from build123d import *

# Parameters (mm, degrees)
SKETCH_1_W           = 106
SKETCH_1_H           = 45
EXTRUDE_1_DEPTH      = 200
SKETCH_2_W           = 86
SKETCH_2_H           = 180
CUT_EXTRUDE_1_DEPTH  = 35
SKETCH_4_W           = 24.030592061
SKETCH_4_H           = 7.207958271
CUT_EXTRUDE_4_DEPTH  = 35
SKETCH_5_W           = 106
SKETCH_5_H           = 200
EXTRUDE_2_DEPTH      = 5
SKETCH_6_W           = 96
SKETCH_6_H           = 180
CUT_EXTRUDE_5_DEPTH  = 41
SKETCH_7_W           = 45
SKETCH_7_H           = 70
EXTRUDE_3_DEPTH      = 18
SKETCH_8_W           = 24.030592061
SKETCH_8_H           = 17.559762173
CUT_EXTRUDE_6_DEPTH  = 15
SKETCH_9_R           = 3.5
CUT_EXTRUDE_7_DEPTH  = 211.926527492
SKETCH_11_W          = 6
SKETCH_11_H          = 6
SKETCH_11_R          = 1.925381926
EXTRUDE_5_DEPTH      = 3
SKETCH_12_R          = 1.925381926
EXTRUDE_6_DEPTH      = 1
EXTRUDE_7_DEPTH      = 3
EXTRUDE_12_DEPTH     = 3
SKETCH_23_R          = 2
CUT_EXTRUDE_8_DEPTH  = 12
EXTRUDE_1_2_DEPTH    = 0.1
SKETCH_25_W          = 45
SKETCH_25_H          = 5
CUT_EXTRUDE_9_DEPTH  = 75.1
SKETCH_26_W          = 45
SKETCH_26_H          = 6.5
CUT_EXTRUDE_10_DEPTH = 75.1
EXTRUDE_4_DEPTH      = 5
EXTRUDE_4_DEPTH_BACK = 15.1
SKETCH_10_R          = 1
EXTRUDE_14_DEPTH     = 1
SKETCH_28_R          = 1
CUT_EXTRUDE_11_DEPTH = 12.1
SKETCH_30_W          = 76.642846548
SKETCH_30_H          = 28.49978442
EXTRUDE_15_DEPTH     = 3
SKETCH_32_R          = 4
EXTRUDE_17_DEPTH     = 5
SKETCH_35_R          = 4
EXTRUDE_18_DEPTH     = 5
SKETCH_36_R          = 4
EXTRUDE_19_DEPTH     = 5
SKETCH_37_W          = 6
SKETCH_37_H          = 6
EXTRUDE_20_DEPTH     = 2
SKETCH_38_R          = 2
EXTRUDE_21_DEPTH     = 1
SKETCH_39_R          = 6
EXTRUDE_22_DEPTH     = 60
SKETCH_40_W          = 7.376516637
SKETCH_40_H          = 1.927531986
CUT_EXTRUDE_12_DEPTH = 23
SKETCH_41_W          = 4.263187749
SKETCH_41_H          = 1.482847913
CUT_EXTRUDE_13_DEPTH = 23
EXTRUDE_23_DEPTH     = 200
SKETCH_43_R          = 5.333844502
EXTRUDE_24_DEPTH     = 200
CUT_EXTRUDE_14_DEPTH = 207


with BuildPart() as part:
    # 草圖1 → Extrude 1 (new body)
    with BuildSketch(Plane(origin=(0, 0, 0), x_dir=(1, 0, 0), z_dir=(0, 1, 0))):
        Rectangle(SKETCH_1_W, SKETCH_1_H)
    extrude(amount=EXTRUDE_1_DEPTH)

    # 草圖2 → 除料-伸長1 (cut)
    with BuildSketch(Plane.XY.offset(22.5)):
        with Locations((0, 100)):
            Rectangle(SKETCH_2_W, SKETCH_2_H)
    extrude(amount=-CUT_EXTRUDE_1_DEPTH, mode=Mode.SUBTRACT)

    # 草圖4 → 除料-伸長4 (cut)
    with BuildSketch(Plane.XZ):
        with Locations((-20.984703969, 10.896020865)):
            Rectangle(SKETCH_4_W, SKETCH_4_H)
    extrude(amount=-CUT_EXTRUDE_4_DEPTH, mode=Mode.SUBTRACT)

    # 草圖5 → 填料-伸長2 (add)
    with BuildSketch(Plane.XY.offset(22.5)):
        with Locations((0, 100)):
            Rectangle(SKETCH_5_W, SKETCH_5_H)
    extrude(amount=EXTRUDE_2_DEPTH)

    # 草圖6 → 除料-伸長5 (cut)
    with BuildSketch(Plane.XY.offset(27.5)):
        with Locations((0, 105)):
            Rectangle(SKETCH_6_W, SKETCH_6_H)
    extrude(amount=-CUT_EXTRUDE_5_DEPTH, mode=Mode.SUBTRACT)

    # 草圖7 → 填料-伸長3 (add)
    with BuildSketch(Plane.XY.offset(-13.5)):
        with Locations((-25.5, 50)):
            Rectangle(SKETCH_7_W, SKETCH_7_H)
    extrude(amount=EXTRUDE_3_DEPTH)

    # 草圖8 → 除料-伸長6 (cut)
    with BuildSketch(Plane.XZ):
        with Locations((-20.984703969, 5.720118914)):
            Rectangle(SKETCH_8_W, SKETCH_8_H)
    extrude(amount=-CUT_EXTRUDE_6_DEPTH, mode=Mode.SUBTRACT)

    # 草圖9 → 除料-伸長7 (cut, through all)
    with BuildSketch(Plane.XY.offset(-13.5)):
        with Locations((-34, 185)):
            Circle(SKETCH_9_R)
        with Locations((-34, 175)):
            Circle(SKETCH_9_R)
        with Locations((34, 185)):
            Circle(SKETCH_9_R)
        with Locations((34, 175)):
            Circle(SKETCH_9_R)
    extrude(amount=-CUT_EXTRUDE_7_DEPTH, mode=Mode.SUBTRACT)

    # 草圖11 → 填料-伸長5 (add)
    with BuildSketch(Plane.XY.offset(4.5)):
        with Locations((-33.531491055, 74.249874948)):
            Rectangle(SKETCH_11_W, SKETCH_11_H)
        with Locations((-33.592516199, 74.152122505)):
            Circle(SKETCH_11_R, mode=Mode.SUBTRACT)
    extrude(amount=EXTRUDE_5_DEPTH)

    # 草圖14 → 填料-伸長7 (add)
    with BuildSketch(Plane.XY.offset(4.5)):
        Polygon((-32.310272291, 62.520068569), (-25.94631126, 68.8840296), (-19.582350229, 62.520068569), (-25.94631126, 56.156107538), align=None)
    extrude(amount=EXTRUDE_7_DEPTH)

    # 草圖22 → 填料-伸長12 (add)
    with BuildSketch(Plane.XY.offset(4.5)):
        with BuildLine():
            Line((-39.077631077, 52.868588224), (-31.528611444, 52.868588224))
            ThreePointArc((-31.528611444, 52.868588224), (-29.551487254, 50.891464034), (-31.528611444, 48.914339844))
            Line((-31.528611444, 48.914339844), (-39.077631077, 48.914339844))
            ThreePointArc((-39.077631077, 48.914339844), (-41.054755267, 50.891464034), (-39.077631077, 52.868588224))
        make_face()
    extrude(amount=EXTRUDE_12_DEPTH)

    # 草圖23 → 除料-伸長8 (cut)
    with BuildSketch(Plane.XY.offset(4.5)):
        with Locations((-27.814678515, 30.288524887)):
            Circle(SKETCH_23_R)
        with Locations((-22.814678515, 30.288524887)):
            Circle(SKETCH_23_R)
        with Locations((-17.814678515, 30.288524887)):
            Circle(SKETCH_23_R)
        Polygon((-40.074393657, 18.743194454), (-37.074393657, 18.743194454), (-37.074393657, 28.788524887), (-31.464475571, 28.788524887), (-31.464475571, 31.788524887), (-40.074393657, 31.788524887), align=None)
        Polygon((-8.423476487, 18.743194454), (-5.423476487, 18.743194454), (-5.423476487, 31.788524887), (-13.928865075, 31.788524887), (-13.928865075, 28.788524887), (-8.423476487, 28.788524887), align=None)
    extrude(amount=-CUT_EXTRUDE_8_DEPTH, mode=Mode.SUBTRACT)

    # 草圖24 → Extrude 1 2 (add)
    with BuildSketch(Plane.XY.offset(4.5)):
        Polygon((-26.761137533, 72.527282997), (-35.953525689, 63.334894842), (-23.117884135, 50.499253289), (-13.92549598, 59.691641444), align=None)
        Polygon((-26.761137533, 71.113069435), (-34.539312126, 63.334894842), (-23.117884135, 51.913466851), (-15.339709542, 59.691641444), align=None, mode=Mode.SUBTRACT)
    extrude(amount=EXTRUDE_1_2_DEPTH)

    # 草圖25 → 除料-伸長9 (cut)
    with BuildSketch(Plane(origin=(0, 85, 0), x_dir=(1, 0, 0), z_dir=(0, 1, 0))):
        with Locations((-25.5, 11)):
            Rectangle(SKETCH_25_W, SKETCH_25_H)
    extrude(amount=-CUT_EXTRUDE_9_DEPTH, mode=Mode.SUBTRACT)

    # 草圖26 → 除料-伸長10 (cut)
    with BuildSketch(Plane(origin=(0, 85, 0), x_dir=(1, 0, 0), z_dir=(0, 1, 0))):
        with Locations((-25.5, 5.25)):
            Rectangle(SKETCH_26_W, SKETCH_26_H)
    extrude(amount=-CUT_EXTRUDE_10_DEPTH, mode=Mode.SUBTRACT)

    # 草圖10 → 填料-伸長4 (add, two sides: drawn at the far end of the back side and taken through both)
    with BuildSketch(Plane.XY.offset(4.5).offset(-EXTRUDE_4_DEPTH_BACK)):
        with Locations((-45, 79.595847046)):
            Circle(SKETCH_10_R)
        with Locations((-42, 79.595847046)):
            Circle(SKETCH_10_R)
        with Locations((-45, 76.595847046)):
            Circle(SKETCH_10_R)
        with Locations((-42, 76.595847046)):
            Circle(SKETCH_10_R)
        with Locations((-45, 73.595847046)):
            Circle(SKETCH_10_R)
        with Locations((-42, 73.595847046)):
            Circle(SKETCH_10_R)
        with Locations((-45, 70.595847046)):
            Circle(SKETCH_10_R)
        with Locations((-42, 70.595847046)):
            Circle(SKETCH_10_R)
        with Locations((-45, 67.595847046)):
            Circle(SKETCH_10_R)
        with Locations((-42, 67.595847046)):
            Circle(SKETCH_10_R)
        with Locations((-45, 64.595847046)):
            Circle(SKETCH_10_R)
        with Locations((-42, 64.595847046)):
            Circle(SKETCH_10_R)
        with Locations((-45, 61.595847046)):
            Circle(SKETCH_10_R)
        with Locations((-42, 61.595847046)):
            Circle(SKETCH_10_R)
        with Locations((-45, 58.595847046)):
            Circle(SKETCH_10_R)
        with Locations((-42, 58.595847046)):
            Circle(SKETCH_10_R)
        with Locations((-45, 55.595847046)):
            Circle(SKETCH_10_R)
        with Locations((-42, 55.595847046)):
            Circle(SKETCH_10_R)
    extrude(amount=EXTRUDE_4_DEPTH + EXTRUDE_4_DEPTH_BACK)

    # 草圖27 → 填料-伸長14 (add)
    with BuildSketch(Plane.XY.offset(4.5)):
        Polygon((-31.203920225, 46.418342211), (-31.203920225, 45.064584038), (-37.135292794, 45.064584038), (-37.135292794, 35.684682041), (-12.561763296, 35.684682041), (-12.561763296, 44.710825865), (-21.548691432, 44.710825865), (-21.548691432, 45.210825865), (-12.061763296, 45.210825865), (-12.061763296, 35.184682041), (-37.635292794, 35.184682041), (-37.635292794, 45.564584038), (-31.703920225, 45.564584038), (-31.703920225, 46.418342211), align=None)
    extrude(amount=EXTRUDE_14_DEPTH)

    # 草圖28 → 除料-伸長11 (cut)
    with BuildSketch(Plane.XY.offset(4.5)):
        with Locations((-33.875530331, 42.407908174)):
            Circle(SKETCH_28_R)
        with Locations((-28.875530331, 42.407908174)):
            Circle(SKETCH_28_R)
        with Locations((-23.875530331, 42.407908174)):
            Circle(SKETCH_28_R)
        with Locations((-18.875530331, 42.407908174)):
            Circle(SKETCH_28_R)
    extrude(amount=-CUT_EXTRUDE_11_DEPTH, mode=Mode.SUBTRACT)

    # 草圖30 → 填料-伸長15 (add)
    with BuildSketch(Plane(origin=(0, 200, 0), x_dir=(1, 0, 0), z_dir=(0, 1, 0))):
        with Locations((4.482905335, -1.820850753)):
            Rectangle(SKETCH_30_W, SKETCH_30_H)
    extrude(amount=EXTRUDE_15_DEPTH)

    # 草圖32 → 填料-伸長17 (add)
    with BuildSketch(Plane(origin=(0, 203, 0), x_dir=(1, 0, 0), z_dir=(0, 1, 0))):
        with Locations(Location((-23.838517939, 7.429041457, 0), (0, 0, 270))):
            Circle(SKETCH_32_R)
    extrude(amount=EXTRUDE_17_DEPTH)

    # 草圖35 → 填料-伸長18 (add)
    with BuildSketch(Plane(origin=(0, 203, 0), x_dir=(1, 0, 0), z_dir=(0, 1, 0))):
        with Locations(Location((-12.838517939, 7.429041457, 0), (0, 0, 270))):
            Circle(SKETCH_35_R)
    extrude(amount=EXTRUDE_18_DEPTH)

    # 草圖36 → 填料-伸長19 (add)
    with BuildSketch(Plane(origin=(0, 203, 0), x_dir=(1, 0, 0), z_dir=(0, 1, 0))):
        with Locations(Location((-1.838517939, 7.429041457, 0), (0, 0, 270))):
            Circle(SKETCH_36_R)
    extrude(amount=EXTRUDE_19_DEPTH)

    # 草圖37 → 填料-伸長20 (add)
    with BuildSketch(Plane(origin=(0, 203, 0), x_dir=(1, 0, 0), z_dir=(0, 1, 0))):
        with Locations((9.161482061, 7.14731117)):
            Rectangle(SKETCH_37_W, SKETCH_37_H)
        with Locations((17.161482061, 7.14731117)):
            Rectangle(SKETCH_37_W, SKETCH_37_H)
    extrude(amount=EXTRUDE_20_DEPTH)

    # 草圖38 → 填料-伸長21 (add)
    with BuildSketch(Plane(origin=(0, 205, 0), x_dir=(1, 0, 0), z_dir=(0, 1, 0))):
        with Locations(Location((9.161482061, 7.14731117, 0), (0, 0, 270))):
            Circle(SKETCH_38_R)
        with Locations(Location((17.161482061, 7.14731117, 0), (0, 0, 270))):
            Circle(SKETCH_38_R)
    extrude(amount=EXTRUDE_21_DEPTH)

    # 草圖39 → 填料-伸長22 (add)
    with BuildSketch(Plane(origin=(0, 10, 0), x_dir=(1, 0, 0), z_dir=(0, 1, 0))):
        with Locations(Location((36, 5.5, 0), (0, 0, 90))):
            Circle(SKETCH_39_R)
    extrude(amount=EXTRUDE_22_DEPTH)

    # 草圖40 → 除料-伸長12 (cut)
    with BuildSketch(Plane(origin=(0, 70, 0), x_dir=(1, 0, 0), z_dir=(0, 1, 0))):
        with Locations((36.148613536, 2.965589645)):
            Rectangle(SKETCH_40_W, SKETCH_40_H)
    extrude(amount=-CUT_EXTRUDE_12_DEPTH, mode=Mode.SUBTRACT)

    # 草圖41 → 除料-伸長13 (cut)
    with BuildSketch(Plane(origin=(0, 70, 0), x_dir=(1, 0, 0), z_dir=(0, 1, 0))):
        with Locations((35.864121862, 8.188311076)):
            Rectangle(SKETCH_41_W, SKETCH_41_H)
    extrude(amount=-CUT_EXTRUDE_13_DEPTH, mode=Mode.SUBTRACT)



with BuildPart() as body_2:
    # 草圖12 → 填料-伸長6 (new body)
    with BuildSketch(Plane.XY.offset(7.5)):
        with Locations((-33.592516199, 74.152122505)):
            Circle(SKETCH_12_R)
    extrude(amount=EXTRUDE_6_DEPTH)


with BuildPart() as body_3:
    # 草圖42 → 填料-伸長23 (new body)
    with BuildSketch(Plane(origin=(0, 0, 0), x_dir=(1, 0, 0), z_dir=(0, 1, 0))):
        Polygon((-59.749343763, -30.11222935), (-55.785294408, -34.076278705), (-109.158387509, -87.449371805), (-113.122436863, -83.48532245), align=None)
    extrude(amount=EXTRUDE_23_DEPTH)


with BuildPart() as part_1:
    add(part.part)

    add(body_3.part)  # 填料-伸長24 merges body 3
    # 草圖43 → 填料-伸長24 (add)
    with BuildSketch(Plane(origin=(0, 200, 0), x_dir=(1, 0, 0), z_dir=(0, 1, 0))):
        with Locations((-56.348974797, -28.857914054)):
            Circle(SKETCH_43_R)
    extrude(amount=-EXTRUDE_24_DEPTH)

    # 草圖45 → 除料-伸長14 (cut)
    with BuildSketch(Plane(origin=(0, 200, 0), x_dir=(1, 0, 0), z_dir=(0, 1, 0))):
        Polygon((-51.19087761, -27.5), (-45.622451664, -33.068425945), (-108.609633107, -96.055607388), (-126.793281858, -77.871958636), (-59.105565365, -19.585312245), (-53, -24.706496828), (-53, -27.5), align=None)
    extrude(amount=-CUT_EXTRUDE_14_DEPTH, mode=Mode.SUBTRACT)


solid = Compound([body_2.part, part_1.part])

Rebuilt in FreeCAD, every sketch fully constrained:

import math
import FreeCAD as App
import Part
import Sketcher
from FreeCAD import Vector
Q = App.Units.Quantity


def add_polygon(sketch, points):
    """Adds a closed chain of lines whose ends are joined by coincident constraints."""
    first, n = sketch.GeometryCount, len(points)
    for a, b in zip(points, points[1:] + points[:1]):
        sketch.addGeometry(Part.LineSegment(App.Vector(*a, 0), App.Vector(*b, 0)), False)
    for i in range(n):
        sketch.addConstraint(Sketcher.Constraint("Coincident", first + i, 2, first + (i + 1) % n, 1))

doc = App.newDocument("Part")
body = doc.addObject("PartDesign::Body", "Body")

# Sketch on XZ plane
sketch1 = body.newObject("Sketcher::SketchObject", "Sketch")
sketch1.AttachmentSupport = (doc.getObject("XZ_Plane"), [""])
sketch1.MapMode = "FlatFace"
add_polygon(sketch1, [(-53, -22), (-53, 22), (53, 22), (53, -22)])  # lines 0-3
sketch1.addConstraint([
    Sketcher.Constraint("Vertical", 0),
    Sketcher.Constraint("Horizontal", 1),
    Sketcher.Constraint("Vertical", 2),
    Sketcher.Constraint("Horizontal", 3),
    Sketcher.Constraint("Symmetric", 0, 2, 2, 2, -1, 1),
    Sketcher.Constraint("DistanceX", 1, 1, 1, 2, 106.0),
    Sketcher.Constraint("DistanceY", 0, 1, 0, 2, 45.0),
])
pad1 = body.newObject("PartDesign::Pad", "Pad")
pad1.Profile = sketch1
pad1.Length = 200
pad1.Reversed = True

# Sketch on XY plane
sketch2 = body.newObject("Sketcher::SketchObject", "Sketch001")
sketch2.AttachmentSupport = (doc.getObject("XY_Plane"), [""])
sketch2.MapMode = "FlatFace"
sketch2.AttachmentOffset = App.Placement(Vector(0, 0, 22.5), App.Rotation())
add_polygon(sketch2, [(-43, 190), (-43, 10), (43, 10), (43, 190)])  # lines 0-3
sketch2.addConstraint([
    Sketcher.Constraint("Vertical", 0),
    Sketcher.Constraint("Horizontal", 1),
    Sketcher.Constraint("Vertical", 2),
    Sketcher.Constraint("Horizontal", 3),
    Sketcher.Constraint("DistanceX", 1, 1, 1, 2, 86.0),
    Sketcher.Constraint("DistanceY", 0, 2, 0, 1, 180.0),
    Sketcher.Constraint("DistanceX", 0, 2, -1, 1, 43.0),
    Sketcher.Constraint("DistanceY", -1, 1, 0, 2, 10.0),
])
pocket1 = body.newObject("PartDesign::Pocket", "Pocket")
pocket1.Profile = sketch2
pocket1.Length = 35

# Sketch on XZ plane
sketch3 = body.newObject("Sketcher::SketchObject", "Sketch002")
sketch3.AttachmentSupport = (doc.getObject("XZ_Plane"), [""])
sketch3.MapMode = "FlatFace"
add_polygon(sketch3, [(-33, 15), (-33, 7), (-9, 7), (-9, 15)])  # lines 0-3
sketch3.addConstraint([
    Sketcher.Constraint("Vertical", 0),
    Sketcher.Constraint("Horizontal", 1),
    Sketcher.Constraint("Vertical", 2),
    Sketcher.Constraint("Horizontal", 3),
    Sketcher.Constraint("DistanceX", 0, 2, -1, 1, 33.0),
    Sketcher.Constraint("DistanceY", -1, 1, 2, 2, 14.5),
    Sketcher.Constraint("DistanceY", 0, 2, 0, 1, 7.207958),
    Sketcher.Constraint("DistanceX", 1, 1, 1, 2, 24.030592),
])
pocket2 = body.newObject("PartDesign::Pocket", "Pocket001")
pocket2.Profile = sketch3
pocket2.Length = 35

# Sketch on XY plane
sketch4 = body.newObject("Sketcher::SketchObject", "Sketch003")
sketch4.AttachmentSupport = (doc.getObject("XY_Plane"), [""])
sketch4.MapMode = "FlatFace"
sketch4.AttachmentOffset = App.Placement(Vector(0, 0, 22.5), App.Rotation())
add_polygon(sketch4, [(-53, 200), (-53, 0), (53, 0), (53, 200)])  # lines 0-3
sketch4.addConstraint([
    Sketcher.Constraint("Vertical", 0),
    Sketcher.Constraint("Horizontal", 1),
    Sketcher.Constraint("Vertical", 2),
    Sketcher.Constraint("Horizontal", 3),
    Sketcher.Constraint("Symmetric", 0, 2, 1, 2, -1, 1),
    Sketcher.Constraint("DistanceX", 1, 1, 1, 2, 106.0),
    Sketcher.Constraint("DistanceY", 0, 2, 0, 1, 200.0),
])
pad2 = body.newObject("PartDesign::Pad", "Pad001")
pad2.Profile = sketch4
pad2.Length = 5

# Sketch on XY plane
sketch5 = body.newObject("Sketcher::SketchObject", "Sketch004")
sketch5.AttachmentSupport = (doc.getObject("XY_Plane"), [""])
sketch5.MapMode = "FlatFace"
sketch5.AttachmentOffset = App.Placement(Vector(0, 0, 27.5), App.Rotation())
add_polygon(sketch5, [(-48, 195), (-48, 15), (48, 15), (48, 195)])  # lines 0-3
sketch5.addConstraint([
    Sketcher.Constraint("Vertical", 0),
    Sketcher.Constraint("Horizontal", 1),
    Sketcher.Constraint("Vertical", 2),
    Sketcher.Constraint("Horizontal", 3),
    Sketcher.Constraint("DistanceX", 1, 1, 1, 2, 96.0),
    Sketcher.Constraint("DistanceY", 0, 2, 0, 1, 180.0),
    Sketcher.Constraint("DistanceX", 0, 2, -1, 1, 48.0),
    Sketcher.Constraint("DistanceY", -1, 1, 0, 2, 15.0),
])
pocket3 = body.newObject("PartDesign::Pocket", "Pocket002")
pocket3.Profile = sketch5
pocket3.Length = 41

# Sketch on XY plane
sketch6 = body.newObject("Sketcher::SketchObject", "Sketch005")
sketch6.AttachmentSupport = (doc.getObject("XY_Plane"), [""])
sketch6.MapMode = "FlatFace"
sketch6.AttachmentOffset = App.Placement(Vector(0, 0, -13.5), App.Rotation())
add_polygon(sketch6, [(-48, 85), (-48, 15), (-3, 15), (-3, 85)])  # lines 0-3
sketch6.addConstraint([
    Sketcher.Constraint("Vertical", 0),
    Sketcher.Constraint("Horizontal", 1),
    Sketcher.Constraint("Vertical", 2),
    Sketcher.Constraint("Horizontal", 3),
    Sketcher.Constraint("DistanceX", 1, 1, 1, 2, 45.0),
    Sketcher.Constraint("DistanceY", 0, 2, 0, 1, 70.0),
    Sketcher.Constraint("DistanceX", 0, 2, -1, 1, 48.0),
    Sketcher.Constraint("DistanceY", -1, 1, 0, 2, 15.0),
])
pad3 = body.newObject("PartDesign::Pad", "Pad002")
pad3.Profile = sketch6
pad3.Length = 18

# Sketch on XZ plane
sketch7 = body.newObject("Sketcher::SketchObject", "Sketch006")
sketch7.AttachmentSupport = (doc.getObject("XZ_Plane"), [""])
sketch7.MapMode = "FlatFace"
add_polygon(sketch7, [(-33, 15), (-33, -3), (-9, -3), (-9, 15)])  # lines 0-3
sketch7.addConstraint([
    Sketcher.Constraint("Vertical", 0),
    Sketcher.Constraint("Horizontal", 1),
    Sketcher.Constraint("Vertical", 2),
    Sketcher.Constraint("Horizontal", 3),
    Sketcher.Constraint("DistanceX", 0, 2, -1, 1, 33.0),
    Sketcher.Constraint("DistanceY", -1, 1, 2, 2, 14.5),
    Sketcher.Constraint("DistanceX", 1, 1, 1, 2, 24.030592),
    Sketcher.Constraint("DistanceY", 0, 2, 0, 1, 17.559762),
])
pocket4 = body.newObject("PartDesign::Pocket", "Pocket003")
pocket4.Profile = sketch7
pocket4.Length = 15

# Sketch on XY plane
sketch8 = body.newObject("Sketcher::SketchObject", "Sketch007")
sketch8.AttachmentSupport = (doc.getObject("XY_Plane"), [""])
sketch8.MapMode = "FlatFace"
sketch8.AttachmentOffset = App.Placement(Vector(0, 0, -13.5), App.Rotation())
sketch8.addGeometry([
    Part.Circle(Vector(-34, 185, 0), Vector(0, 0, 1), 3.5),
    Part.Circle(Vector(-34, 175, 0), Vector(0, 0, 1), 3.5),
    Part.Circle(Vector(34, 185, 0), Vector(0, 0, 1), 3.5),
    Part.Circle(Vector(34, 175, 0), Vector(0, 0, 1), 3.5),
], False)
sketch8.addConstraint([
    Sketcher.Constraint("Equal", 0, 1),
    Sketcher.Constraint("Equal", 1, 2),
    Sketcher.Constraint("Equal", 2, 3),
    Sketcher.Constraint("Symmetric", 0, 3, 2, 3, -2),
    Sketcher.Constraint("Symmetric", 1, 3, 3, 3, -2),
    Sketcher.Constraint("Vertical", 0, 3, 1, 3),
    Sketcher.Constraint("Diameter", 0, 7.0),
    Sketcher.Constraint("DistanceX", 0, 3, -1, 1, 34.0),
    Sketcher.Constraint("DistanceY", -1, 1, 0, 3, 185.0),
    Sketcher.Constraint("DistanceY", -1, 1, 1, 3, 175.0),
])
pocket5 = body.newObject("PartDesign::Pocket", "Pocket004")
pocket5.Profile = sketch8
pocket5.Type = "ThroughAll"

# Sketch on XY plane
sketch9 = body.newObject("Sketcher::SketchObject", "Sketch008")
sketch9.AttachmentSupport = (doc.getObject("XY_Plane"), [""])
sketch9.MapMode = "FlatFace"
sketch9.AttachmentOffset = App.Placement(Vector(0, 0, 4.5), App.Rotation())
add_polygon(sketch9, [(-36.5, 77.2), (-36.5, 71.2), (-30.5, 71.2), (-30.5, 77.2)])  # lines 0-3
sketch9.addGeometry(Part.Circle(Vector(-33.6, 74.2, 0), Vector(0, 0, 1), 1.9), False)  # 4
sketch9.addConstraint([
    Sketcher.Constraint("Vertical", 0),
    Sketcher.Constraint("Horizontal", 1),
    Sketcher.Constraint("Vertical", 2),
    Sketcher.Constraint("Horizontal", 3),
    Sketcher.Constraint("Equal", 3, 0),
    Sketcher.Constraint("DistanceX", 1, 1, 1, 2, 6.0),
    Sketcher.Constraint("Diameter", 4, 3.850764),
    Sketcher.Constraint("DistanceX", 0, 2, -1, 1, 36.531491),
    Sketcher.Constraint("DistanceX", 4, 3, -1, 1, 33.592516),
    Sketcher.Constraint("DistanceY", -1, 1, 4, 3, 74.152123),
    Sketcher.Constraint("DistanceY", -1, 1, 0, 2, 71.249875),
])
pad4 = body.newObject("PartDesign::Pad", "Pad003")
pad4.Profile = sketch9
pad4.Length = 3

# Sketch on XY plane
sketch10 = body.newObject("Sketcher::SketchObject", "Sketch009")
sketch10.AttachmentSupport = (doc.getObject("XY_Plane"), [""])
sketch10.MapMode = "FlatFace"
sketch10.AttachmentOffset = App.Placement(Vector(0, 0, 4.5), App.Rotation())
add_polygon(sketch10, [(-26, 69), (-32, 63), (-26, 56), (-20, 63)])  # lines 0-3
sketch10.addConstraint([
    Sketcher.Constraint("Perpendicular", 0, 1),
    Sketcher.Constraint("Perpendicular", 1, 2),
    Sketcher.Constraint("Perpendicular", 2, 3),
    Sketcher.Constraint("Horizontal", 0, 2, 2, 2),
    Sketcher.Constraint("Vertical", 1, 2, 3, 2),
    Sketcher.Constraint("Distance", 0, 9.0),
    Sketcher.Constraint("DistanceY", -1, 1, 0, 2, 62.520069),
    Sketcher.Constraint("DistanceX", 1, 2, -1, 1, 25.946311),
])
pad5 = body.newObject("PartDesign::Pad", "Pad004")
pad5.Profile = sketch10
pad5.Length = 3

# Sketch on XY plane
sketch11 = body.newObject("Sketcher::SketchObject", "Sketch010")
sketch11.AttachmentSupport = (doc.getObject("XY_Plane"), [""])
sketch11.MapMode = "FlatFace"
sketch11.AttachmentOffset = App.Placement(Vector(0, 0, 4.5), App.Rotation())
sketch11.addGeometry([
    Part.LineSegment(Vector(-31.5, 52.9, 0), Vector(-39.1, 52.9, 0)),
    Part.ArcOfCircle(Part.Circle(Vector(-39.1, 50.9, 0), Vector(0, 0, 1), 2), math.radians(90), math.radians(270)),
    Part.LineSegment(Vector(-39.1, 48.9, 0), Vector(-31.5, 48.9, 0)),
    Part.ArcOfCircle(Part.Circle(Vector(-31.5, 50.9, 0), Vector(0, 0, 1), 2), math.radians(-90), math.radians(90)),
], False)
sketch11.addConstraint([
    Sketcher.Constraint("Tangent", 0, 2, 1, 1),
    Sketcher.Constraint("Tangent", 1, 2, 2, 1),
    Sketcher.Constraint("Tangent", 2, 2, 3, 1),
    Sketcher.Constraint("Tangent", 3, 2, 0, 1),
    Sketcher.Constraint("Horizontal", 0),
    Sketcher.Constraint("Horizontal", 2),
    Sketcher.Constraint("Radius", 1, 1.977124),
    Sketcher.Constraint("DistanceX", 0, 2, 0, 1, 7.54902),
    Sketcher.Constraint("DistanceX", 1, 3, -1, 1, 39.077631),
    Sketcher.Constraint("DistanceY", -1, 1, 0, 2, 52.868588),
])
pad6 = body.newObject("PartDesign::Pad", "Pad005")
pad6.Profile = sketch11
pad6.Length = 3

# Sketch on XY plane
sketch12 = body.newObject("Sketcher::SketchObject", "Sketch011")
sketch12.AttachmentSupport = (doc.getObject("XY_Plane"), [""])
sketch12.MapMode = "FlatFace"
sketch12.AttachmentOffset = App.Placement(Vector(0, 0, 4.5), App.Rotation())
sketch12.addGeometry(Part.Circle(Vector(-27.8, 30.3, 0), Vector(0, 0, 1), 2), False)  # 0
sketch12.addGeometry(Part.Circle(Vector(-22.8, 30.3, 0), Vector(0, 0, 1), 2), False)  # 1
sketch12.addGeometry(Part.Circle(Vector(-17.8, 30.3, 0), Vector(0, 0, 1), 2), False)  # 2
add_polygon(sketch12, [(-40.1, 18.7), (-37.1, 18.7), (-37.1, 28.8), (-31.5, 28.8), (-31.5, 31.8), (-40.1, 31.8)])  # lines 3-8
add_polygon(sketch12, [(-8.4, 18.7), (-5.4, 18.7), (-5.4, 31.8), (-13.9, 31.8), (-13.9, 28.8), (-8.4, 28.8)])  # lines 9-14
sketch12.addConstraint([
    Sketcher.Constraint("Horizontal", 3),
    Sketcher.Constraint("Vertical", 4),
    Sketcher.Constraint("Horizontal", 5),
    Sketcher.Constraint("Vertical", 6),
    Sketcher.Constraint("Horizontal", 7),
    Sketcher.Constraint("Vertical", 8),
    Sketcher.Constraint("Horizontal", 9),
    Sketcher.Constraint("Vertical", 10),
    Sketcher.Constraint("Horizontal", 11),
    Sketcher.Constraint("Vertical", 12),
    Sketcher.Constraint("Horizontal", 13),
    Sketcher.Constraint("Vertical", 14),
    Sketcher.Constraint("Equal", 0, 1),
    Sketcher.Constraint("Equal", 1, 2),
    Sketcher.Constraint("Horizontal", 0, 3, 1, 3),
    Sketcher.Constraint("Horizontal", 1, 3, 2, 3),
    Sketcher.Constraint("Horizontal", 8, 2, 9, 2),
    Sketcher.Constraint("Horizontal", 7, 2, 10, 2),
    Sketcher.Constraint("Horizontal", 5, 2, 12, 2),
    Sketcher.Constraint("Equal", 3, 9),
    Sketcher.Constraint("Equal", 9, 6),
    Sketcher.Constraint("Diameter", 0, 4.0),
    Sketcher.Constraint("DistanceX", 3, 1, 3, 2, 3.0),
    Sketcher.Constraint("DistanceX", 0, 3, 1, 3, 5.0),
    Sketcher.Constraint("DistanceX", 1, 3, 2, 3, 5.0),
    Sketcher.Constraint("DistanceY", 4, 2, 0, 3, 1.5),
    Sketcher.Constraint("DistanceX", 5, 2, 9, 2, 26.040999),
    Sketcher.Constraint("DistanceX", 5, 1, 5, 2, 5.609918),
    Sketcher.Constraint("DistanceX", 11, 2, 11, 1, 8.505389),
    Sketcher.Constraint("DistanceY", 4, 1, 4, 2, 10.04533),
    Sketcher.Constraint("DistanceX", 0, 3, -1, 1, 27.814679),
    Sketcher.Constraint("DistanceY", -1, 1, 0, 3, 30.288525),
    Sketcher.Constraint("DistanceX", 3, 2, -1, 1, 37.074394),
])
pocket6 = body.newObject("PartDesign::Pocket", "Pocket005")
pocket6.Profile = sketch12
pocket6.Length = 12

# Sketch on XY plane
sketch13 = body.newObject("Sketcher::SketchObject", "Sketch012")
sketch13.AttachmentSupport = (doc.getObject("XY_Plane"), [""])
sketch13.MapMode = "FlatFace"
sketch13.AttachmentOffset = App.Placement(Vector(0, 0, 4.5), App.Rotation())
add_polygon(sketch13, [(-27, 73), (-36, 63), (-23, 50), (-14, 60)])  # lines 0-3
add_polygon(sketch13, [(-35, 63), (-27, 71), (-15, 60), (-23, 52)])  # lines 4-7
sketch13.addConstraint([
    Sketcher.Constraint("Perpendicular", 0, 1),
    Sketcher.Constraint("Perpendicular", 1, 2),
    Sketcher.Constraint("Perpendicular", 2, 3),
    Sketcher.Constraint("Perpendicular", 3, 4),
    Sketcher.Constraint("Perpendicular", 4, 5),
    Sketcher.Constraint("Perpendicular", 5, 6),
    Sketcher.Constraint("Perpendicular", 6, 7),
    Sketcher.Constraint("Horizontal", 2, 2, 5, 2),
    Sketcher.Constraint("Horizontal", 0, 2, 7, 2),
    Sketcher.Constraint("Vertical", 3, 2, 4, 2),
    Sketcher.Constraint("Vertical", 1, 2, 6, 2),
    Sketcher.Constraint("Distance", 0, 13.0),
    Sketcher.Constraint("Distance", 4, 11.0),
    Sketcher.Constraint("Distance", 1, 18.152338),
    Sketcher.Constraint("DistanceY", -1, 1, 2, 2, 59.691641),
    Sketcher.Constraint("DistanceX", 5, 2, -1, 1, 15.33971),
])
pad7 = body.newObject("PartDesign::Pad", "Pad006")
pad7.Profile = sketch13
pad7.Length = 0.1

# Sketch on XZ plane
sketch14 = body.newObject("Sketcher::SketchObject", "Sketch013")
sketch14.AttachmentSupport = (doc.getObject("XZ_Plane"), [""])
sketch14.MapMode = "FlatFace"
sketch14.AttachmentOffset = App.Placement(Vector(0, 0, -85), App.Rotation())
add_polygon(sketch14, [(-48, -14), (-48, -8), (-3, -8), (-3, -14)])  # lines 0-3
sketch14.addConstraint([
    Sketcher.Constraint("Vertical", 0),
    Sketcher.Constraint("Horizontal", 1),
    Sketcher.Constraint("Vertical", 2),
    Sketcher.Constraint("Horizontal", 3),
    Sketcher.Constraint("DistanceX", 1, 1, 1, 2, 45.0),
    Sketcher.Constraint("DistanceY", 0, 1, 0, 2, 5.0),
    Sketcher.Constraint("DistanceX", 0, 2, -1, 1, 48.0),
    Sketcher.Constraint("DistanceY", 0, 2, -1, 1, 8.5),
])
pocket7 = body.newObject("PartDesign::Pocket", "Pocket006")
pocket7.Profile = sketch14
pocket7.Length = 75.1
pocket7.Reversed = True

# Sketch on XZ plane
sketch15 = body.newObject("Sketcher::SketchObject", "Sketch014")
sketch15.AttachmentSupport = (doc.getObject("XZ_Plane"), [""])
sketch15.MapMode = "FlatFace"
sketch15.AttachmentOffset = App.Placement(Vector(0, 0, -85), App.Rotation())
add_polygon(sketch15, [(-48, -8), (-48, -2), (-3, -2), (-3, -8)])  # lines 0-3
sketch15.addConstraint([
    Sketcher.Constraint("Vertical", 0),
    Sketcher.Constraint("Horizontal", 1),
    Sketcher.Constraint("Vertical", 2),
    Sketcher.Constraint("Horizontal", 3),
    Sketcher.Constraint("DistanceX", 1, 1, 1, 2, 45.0),
    Sketcher.Constraint("DistanceY", 0, 1, 0, 2, 6.5),
    Sketcher.Constraint("DistanceX", 0, 2, -1, 1, 48.0),
    Sketcher.Constraint("DistanceY", 0, 2, -1, 1, 2.0),
])
pocket8 = body.newObject("PartDesign::Pocket", "Pocket007")
pocket8.Profile = sketch15
pocket8.Length = 75.1
pocket8.Reversed = True

# Sketch on XY plane
sketch16 = body.newObject("Sketcher::SketchObject", "Sketch015")
sketch16.AttachmentSupport = (doc.getObject("XY_Plane"), [""])
sketch16.MapMode = "FlatFace"
sketch16.AttachmentOffset = App.Placement(Vector(0, 0, 4.5), App.Rotation())
sketch16.addGeometry([
    Part.Circle(Vector(-45, 79.6, 0), Vector(0, 0, 1), 1),  # 0
    Part.Circle(Vector(-42, 79.6, 0), Vector(0, 0, 1), 1),  # 1
    Part.Circle(Vector(-45, 76.6, 0), Vector(0, 0, 1), 1),  # 2
    Part.Circle(Vector(-42, 76.6, 0), Vector(0, 0, 1), 1),  # 3
    Part.Circle(Vector(-45, 73.6, 0), Vector(0, 0, 1), 1),  # 4
    Part.Circle(Vector(-42, 73.6, 0), Vector(0, 0, 1), 1),  # 5
    Part.Circle(Vector(-45, 70.6, 0), Vector(0, 0, 1), 1),  # 6
    Part.Circle(Vector(-42, 70.6, 0), Vector(0, 0, 1), 1),  # 7
    Part.Circle(Vector(-45, 67.6, 0), Vector(0, 0, 1), 1),  # 8
    Part.Circle(Vector(-42, 67.6, 0), Vector(0, 0, 1), 1),  # 9
    Part.Circle(Vector(-45, 64.6, 0), Vector(0, 0, 1), 1),  # 10
    Part.Circle(Vector(-42, 64.6, 0), Vector(0, 0, 1), 1),  # 11
    Part.Circle(Vector(-45, 61.6, 0), Vector(0, 0, 1), 1),  # 12
    Part.Circle(Vector(-42, 61.6, 0), Vector(0, 0, 1), 1),  # 13
    Part.Circle(Vector(-45, 58.6, 0), Vector(0, 0, 1), 1),  # 14
    Part.Circle(Vector(-42, 58.6, 0), Vector(0, 0, 1), 1),  # 15
    Part.Circle(Vector(-45, 55.6, 0), Vector(0, 0, 1), 1),  # 16
    Part.Circle(Vector(-42, 55.6, 0), Vector(0, 0, 1), 1),  # 17
], False)
sketch16.addConstraint([
    Sketcher.Constraint("Equal", 0, 1),
    Sketcher.Constraint("Equal", 1, 2),
    Sketcher.Constraint("Equal", 2, 3),
    Sketcher.Constraint("Equal", 3, 4),
    Sketcher.Constraint("Equal", 4, 5),
    Sketcher.Constraint("Equal", 5, 6),
    Sketcher.Constraint("Equal", 6, 7),
    Sketcher.Constraint("Equal", 7, 8),
    Sketcher.Constraint("Equal", 8, 9),
    Sketcher.Constraint("Equal", 9, 10),
    Sketcher.Constraint("Equal", 10, 11),
    Sketcher.Constraint("Equal", 11, 12),
    Sketcher.Constraint("Equal", 12, 13),
    Sketcher.Constraint("Equal", 13, 14),
    Sketcher.Constraint("Equal", 14, 15),
    Sketcher.Constraint("Equal", 15, 16),
    Sketcher.Constraint("Equal", 16, 17),
    Sketcher.Constraint("Horizontal", 0, 3, 1, 3),
    Sketcher.Constraint("Horizontal", 2, 3, 3, 3),
    Sketcher.Constraint("Horizontal", 4, 3, 5, 3),
    Sketcher.Constraint("Horizontal", 6, 3, 7, 3),
    Sketcher.Constraint("Horizontal", 8, 3, 9, 3),
    Sketcher.Constraint("Horizontal", 10, 3, 11, 3),
    Sketcher.Constraint("Horizontal", 12, 3, 13, 3),
    Sketcher.Constraint("Horizontal", 14, 3, 15, 3),
    Sketcher.Constraint("Horizontal", 16, 3, 17, 3),
    Sketcher.Constraint("Vertical", 0, 3, 2, 3),
    Sketcher.Constraint("Vertical", 1, 3, 3, 3),
    Sketcher.Constraint("Vertical", 2, 3, 4, 3),
    Sketcher.Constraint("Vertical", 3, 3, 5, 3),
    Sketcher.Constraint("Vertical", 4, 3, 6, 3),
    Sketcher.Constraint("Vertical", 5, 3, 7, 3),
    Sketcher.Constraint("Vertical", 6, 3, 8, 3),
    Sketcher.Constraint("Vertical", 7, 3, 9, 3),
    Sketcher.Constraint("Vertical", 8, 3, 10, 3),
    Sketcher.Constraint("Vertical", 9, 3, 11, 3),
    Sketcher.Constraint("Vertical", 10, 3, 12, 3),
    Sketcher.Constraint("Vertical", 11, 3, 13, 3),
    Sketcher.Constraint("Vertical", 12, 3, 14, 3),
    Sketcher.Constraint("Vertical", 13, 3, 15, 3),
    Sketcher.Constraint("Vertical", 14, 3, 16, 3),
    Sketcher.Constraint("Vertical", 15, 3, 17, 3),
    Sketcher.Constraint("Diameter", 0, 2.0),
    Sketcher.Constraint("DistanceX", 0, 3, -1, 1, 45.0),
    Sketcher.Constraint("DistanceX", 1, 3, -1, 1, 42.0),
    Sketcher.Constraint("DistanceY", 2, 3, 0, 3, 3.0),
    Sketcher.Constraint("DistanceY", 4, 3, 2, 3, 3.0),
    Sketcher.Constraint("DistanceY", 6, 3, 4, 3, 3.0),
    Sketcher.Constraint("DistanceY", 8, 3, 6, 3, 3.0),
    Sketcher.Constraint("DistanceY", 10, 3, 8, 3, 3.0),
    Sketcher.Constraint("DistanceY", 12, 3, 10, 3, 3.0),
    Sketcher.Constraint("DistanceY", 14, 3, 12, 3, 3.0),
    Sketcher.Constraint("DistanceY", 16, 3, 14, 3, 3.0),
    Sketcher.Constraint("DistanceY", -1, 1, 0, 3, 79.595847),
])
pad8 = body.newObject("PartDesign::Pad", "Pad007")
pad8.Profile = sketch16
pad8.Type = "TwoLengths"
pad8.Length = 5
pad8.Length2 = 15.1

# Sketch on XY plane
sketch17 = body.newObject("Sketcher::SketchObject", "Sketch016")
sketch17.AttachmentSupport = (doc.getObject("XY_Plane"), [""])
sketch17.MapMode = "FlatFace"
sketch17.AttachmentOffset = App.Placement(Vector(0, 0, 4.5), App.Rotation())
add_polygon(sketch17, [(-31.2, 45.1), (-31.2, 46.4), (-31.7, 46.4), (-31.7, 45.6), (-37.6, 45.6), (-37.6, 35.2), (-12.1, 35.2), (-12.1, 45.2), (-21.5, 45.2), (-21.5, 44.7), (-12.6, 44.7), (-12.6, 35.7), (-37.1, 35.7), (-37.1, 45.1)])  # lines 0-13
sketch17.addConstraint([
    Sketcher.Constraint("Vertical", 0),
    Sketcher.Constraint("Horizontal", 1),
    Sketcher.Constraint("Vertical", 2),
    Sketcher.Constraint("Horizontal", 3),
    Sketcher.Constraint("Vertical", 4),
    Sketcher.Constraint("Horizontal", 5),
    Sketcher.Constraint("Vertical", 6),
    Sketcher.Constraint("Horizontal", 7),
    Sketcher.Constraint("Vertical", 8),
    Sketcher.Constraint("Horizontal", 9),
    Sketcher.Constraint("Vertical", 10),
    Sketcher.Constraint("Horizontal", 11),
    Sketcher.Constraint("Vertical", 12),
    Sketcher.Constraint("Horizontal", 13),
    Sketcher.Constraint("Equal", 3, 13),
    Sketcher.Constraint("Equal", 1, 8),
    Sketcher.Constraint("DistanceX", 1, 2, 1, 1, 0.5),
    Sketcher.Constraint("DistanceX", 9, 2, 6, 2, 0.5),
    Sketcher.Constraint("DistanceY", 5, 2, 10, 2, 0.5),
    Sketcher.Constraint("DistanceY", 12, 2, 3, 2, 0.5),
    Sketcher.Constraint("DistanceY", 4, 2, 4, 1, 10.379902),
    Sketcher.Constraint("DistanceX", 5, 1, 5, 2, 25.573529),
    Sketcher.Constraint("DistanceX", 7, 2, 7, 1, 9.486928),
    Sketcher.Constraint("DistanceY", 0, 1, 0, 2, 1.353758),
    Sketcher.Constraint("DistanceX", 3, 2, 3, 1, 5.931373),
    Sketcher.Constraint("DistanceY", 6, 1, 6, 2, 10.026144),
    Sketcher.Constraint("DistanceX", 0, 2, -1, 1, 31.20392),
    Sketcher.Constraint("DistanceY", -1, 1, 0, 2, 46.418342),
])
pad9 = body.newObject("PartDesign::Pad", "Pad008")
pad9.Profile = sketch17
pad9.Length = 1

# Sketch on XY plane
sketch18 = body.newObject("Sketcher::SketchObject", "Sketch017")
sketch18.AttachmentSupport = (doc.getObject("XY_Plane"), [""])
sketch18.MapMode = "FlatFace"
sketch18.AttachmentOffset = App.Placement(Vector(0, 0, 4.5), App.Rotation())
sketch18.addGeometry([
    Part.Circle(Vector(-33.9, 42.4, 0), Vector(0, 0, 1), 1),
    Part.Circle(Vector(-28.9, 42.4, 0), Vector(0, 0, 1), 1),
    Part.Circle(Vector(-23.9, 42.4, 0), Vector(0, 0, 1), 1),
    Part.Circle(Vector(-18.9, 42.4, 0), Vector(0, 0, 1), 1),
], False)
sketch18.addConstraint([
    Sketcher.Constraint("Equal", 0, 1),
    Sketcher.Constraint("Equal", 1, 2),
    Sketcher.Constraint("Equal", 2, 3),
    Sketcher.Constraint("Horizontal", 0, 3, 1, 3),
    Sketcher.Constraint("Horizontal", 1, 3, 2, 3),
    Sketcher.Constraint("Horizontal", 2, 3, 3, 3),
    Sketcher.Constraint("Diameter", 0, 2.0),
    Sketcher.Constraint("DistanceX", 0, 3, 1, 3, 5.0),
    Sketcher.Constraint("DistanceX", 1, 3, 2, 3, 5.0),
    Sketcher.Constraint("DistanceX", 2, 3, 3, 3, 5.0),
    Sketcher.Constraint("DistanceX", 0, 3, -1, 1, 33.87553),
    Sketcher.Constraint("DistanceY", -1, 1, 0, 3, 42.407908),
])
pocket9 = body.newObject("PartDesign::Pocket", "Pocket008")
pocket9.Profile = sketch18
pocket9.Length = 12.1

# Sketch on XZ plane
sketch19 = body.newObject("Sketcher::SketchObject", "Sketch018")
sketch19.AttachmentSupport = (doc.getObject("XZ_Plane"), [""])
sketch19.MapMode = "FlatFace"
sketch19.AttachmentOffset = App.Placement(Vector(0, 0, -200), App.Rotation())
add_polygon(sketch19, [(-34, -12), (-34, 16), (43, 16), (43, -12)])  # lines 0-3
sketch19.addConstraint([
    Sketcher.Constraint("Vertical", 0),
    Sketcher.Constraint("Horizontal", 1),
    Sketcher.Constraint("Vertical", 2),
    Sketcher.Constraint("Horizontal", 3),
    Sketcher.Constraint("DistanceX", 1, 1, 1, 2, 76.642847),
    Sketcher.Constraint("DistanceY", 0, 1, 0, 2, 28.499784),
    Sketcher.Constraint("DistanceX", -1, 1, 1, 2, 42.804329),
    Sketcher.Constraint("DistanceY", 2, 2, -1, 1, 12.429041),
])
pad10 = body.newObject("PartDesign::Pad", "Pad009")
pad10.Profile = sketch19
pad10.Length = 3
pad10.Reversed = True

# Sketch on XZ plane
sketch20 = body.newObject("Sketcher::SketchObject", "Sketch019")
sketch20.AttachmentSupport = (doc.getObject("XZ_Plane"), [""])
sketch20.MapMode = "FlatFace"
sketch20.AttachmentOffset = App.Placement(Vector(0, 0, -203), App.Rotation())
sketch20.addGeometry(Part.Circle(Vector(-23.8, -7.4, 0), Vector(0, 0, 1), 4), False)
sketch20.addConstraint([
    Sketcher.Constraint("Diameter", 0, 8.0),
    Sketcher.Constraint("DistanceY", 0, 3, -1, 1, 7.429041),
    Sketcher.Constraint("DistanceX", 0, 3, -1, 1, 23.838518),
])
pad11 = body.newObject("PartDesign::Pad", "Pad010")
pad11.Profile = sketch20
pad11.Length = 5
pad11.Reversed = True

# Sketch on XZ plane
sketch21 = body.newObject("Sketcher::SketchObject", "Sketch020")
sketch21.AttachmentSupport = (doc.getObject("XZ_Plane"), [""])
sketch21.MapMode = "FlatFace"
sketch21.AttachmentOffset = App.Placement(Vector(0, 0, -203), App.Rotation())
sketch21.addGeometry(Part.Circle(Vector(-12.8, -7.4, 0), Vector(0, 0, 1), 4), False)
sketch21.addConstraint([
    Sketcher.Constraint("Diameter", 0, 8.0),
    Sketcher.Constraint("DistanceY", 0, 3, -1, 1, 7.429041),
    Sketcher.Constraint("DistanceX", 0, 3, -1, 1, 12.838518),
])
pad12 = body.newObject("PartDesign::Pad", "Pad011")
pad12.Profile = sketch21
pad12.Length = 5
pad12.Reversed = True

# Sketch on XZ plane
sketch22 = body.newObject("Sketcher::SketchObject", "Sketch021")
sketch22.AttachmentSupport = (doc.getObject("XZ_Plane"), [""])
sketch22.MapMode = "FlatFace"
sketch22.AttachmentOffset = App.Placement(Vector(0, 0, -203), App.Rotation())
sketch22.addGeometry(Part.Circle(Vector(-1.8, -7.4, 0), Vector(0, 0, 1), 4), False)
sketch22.addConstraint([
    Sketcher.Constraint("Diameter", 0, 8.0),
    Sketcher.Constraint("DistanceY", 0, 3, -1, 1, 7.429041),
    Sketcher.Constraint("DistanceX", 0, 3, -1, 1, 1.838518),
])
pad13 = body.newObject("PartDesign::Pad", "Pad012")
pad13.Profile = sketch22
pad13.Length = 5
pad13.Reversed = True

# Sketch on XZ plane
sketch23 = body.newObject("Sketcher::SketchObject", "Sketch022")
sketch23.AttachmentSupport = (doc.getObject("XZ_Plane"), [""])
sketch23.MapMode = "FlatFace"
sketch23.AttachmentOffset = App.Placement(Vector(0, 0, -203), App.Rotation())
add_polygon(sketch23, [(6, -10), (6, -4), (12, -4), (12, -10)])  # lines 0-3
add_polygon(sketch23, [(14, -10), (14, -4), (20, -4), (20, -10)])  # lines 4-7
sketch23.addConstraint([
    Sketcher.Constraint("Vertical", 0),
    Sketcher.Constraint("Horizontal", 1),
    Sketcher.Constraint("Vertical", 2),
    Sketcher.Constraint("Horizontal", 3),
    Sketcher.Constraint("Vertical", 4),
    Sketcher.Constraint("Horizontal", 5),
    Sketcher.Constraint("Vertical", 6),
    Sketcher.Constraint("Horizontal", 7),
    Sketcher.Constraint("Horizontal", 1, 2, 4, 2),
    Sketcher.Constraint("Horizontal", 3, 2, 6, 2),
    Sketcher.Constraint("Equal", 3, 5),
    Sketcher.Constraint("Equal", 7, 0),
    Sketcher.Constraint("DistanceX", 1, 1, 1, 2, 6.0),
    Sketcher.Constraint("DistanceX", 1, 2, 4, 2, 2.0),
    Sketcher.Constraint("DistanceY", 0, 2, -1, 1, 4.147311),
    Sketcher.Constraint("DistanceX", -1, 1, 0, 2, 6.161482),
])
pad14 = body.newObject("PartDesign::Pad", "Pad013")
pad14.Profile = sketch23
pad14.Length = 2
pad14.Reversed = True

# Sketch on XZ plane
sketch24 = body.newObject("Sketcher::SketchObject", "Sketch023")
sketch24.AttachmentSupport = (doc.getObject("XZ_Plane"), [""])
sketch24.MapMode = "FlatFace"
sketch24.AttachmentOffset = App.Placement(Vector(0, 0, -205), App.Rotation())
sketch24.addGeometry([
    Part.Circle(Vector(9.2, -7.1, 0), Vector(0, 0, 1), 2),
    Part.Circle(Vector(17.2, -7.1, 0), Vector(0, 0, 1), 2),
], False)
sketch24.addConstraint([
    Sketcher.Constraint("Equal", 0, 1),
    Sketcher.Constraint("Horizontal", 0, 3, 1, 3),
    Sketcher.Constraint("Diameter", 0, 4.0),
    Sketcher.Constraint("DistanceX", 0, 3, 1, 3, 8.0),
    Sketcher.Constraint("DistanceY", 0, 3, -1, 1, 7.147311),
    Sketcher.Constraint("DistanceX", -1, 1, 0, 3, 9.161482),
])
pad15 = body.newObject("PartDesign::Pad", "Pad014")
pad15.Profile = sketch24
pad15.Length = 1
pad15.Reversed = True

# Sketch on XZ plane
sketch25 = body.newObject("Sketcher::SketchObject", "Sketch024")
sketch25.AttachmentSupport = (doc.getObject("XZ_Plane"), [""])
sketch25.MapMode = "FlatFace"
sketch25.AttachmentOffset = App.Placement(Vector(0, 0, -10), App.Rotation())
sketch25.addGeometry(Part.Circle(Vector(36, -6, 0), Vector(0, 0, 1), 6), False)
sketch25.addConstraint([
    Sketcher.Constraint("Diameter", 0, 12.0),
    Sketcher.Constraint("DistanceX", -1, 1, 0, 3, 36.0),
    Sketcher.Constraint("DistanceY", 0, 3, -1, 1, 5.5),
])
pad16 = body.newObject("PartDesign::Pad", "Pad015")
pad16.Profile = sketch25
pad16.Length = 60
pad16.Reversed = True

# Sketch on XZ plane
sketch26 = body.newObject("Sketcher::SketchObject", "Sketch025")
sketch26.AttachmentSupport = (doc.getObject("XZ_Plane"), [""])
sketch26.MapMode = "FlatFace"
sketch26.AttachmentOffset = App.Placement(Vector(0, 0, -70), App.Rotation())
add_polygon(sketch26, [(32.5, -3.9), (32.5, -2), (39.8, -2), (39.8, -3.9)])  # lines 0-3
sketch26.addConstraint([
    Sketcher.Constraint("Vertical", 0),
    Sketcher.Constraint("Horizontal", 1),
    Sketcher.Constraint("Vertical", 2),
    Sketcher.Constraint("Horizontal", 3),
    Sketcher.Constraint("DistanceY", 0, 1, 0, 2, 1.927532),
    Sketcher.Constraint("DistanceX", 1, 1, 1, 2, 7.376517),
    Sketcher.Constraint("DistanceX", -1, 1, 1, 2, 39.836872),
    Sketcher.Constraint("DistanceY", 0, 2, -1, 1, 2.001824),
])
pocket10 = body.newObject("PartDesign::Pocket", "Pocket009")
pocket10.Profile = sketch26
pocket10.Length = 23
pocket10.Reversed = True

# Sketch on XZ plane
sketch27 = body.newObject("Sketcher::SketchObject", "Sketch026")
sketch27.AttachmentSupport = (doc.getObject("XZ_Plane"), [""])
sketch27.MapMode = "FlatFace"
sketch27.AttachmentOffset = App.Placement(Vector(0, 0, -70), App.Rotation())
add_polygon(sketch27, [(33.7, -8.9), (33.7, -7.4), (38, -7.4), (38, -8.9)])  # lines 0-3
sketch27.addConstraint([
    Sketcher.Constraint("Vertical", 0),
    Sketcher.Constraint("Horizontal", 1),
    Sketcher.Constraint("Vertical", 2),
    Sketcher.Constraint("Horizontal", 3),
    Sketcher.Constraint("DistanceX", 1, 1, 1, 2, 4.263188),
    Sketcher.Constraint("DistanceY", 0, 1, 0, 2, 1.482848),
    Sketcher.Constraint("DistanceX", -1, 1, 0, 2, 33.732528),
    Sketcher.Constraint("DistanceY", 0, 2, -1, 1, 7.446887),
])
pocket11 = body.newObject("PartDesign::Pocket", "Pocket010")
pocket11.Profile = sketch27
pocket11.Length = 23
pocket11.Reversed = True
body2 = doc.addObject("PartDesign::Body", "Body001")

# Sketch on XY plane
sketch28 = body2.newObject("Sketcher::SketchObject", "Sketch027")
sketch28.AttachmentSupport = (doc.getObject("XY_Plane001"), [""])
sketch28.MapMode = "FlatFace"
sketch28.AttachmentOffset = App.Placement(Vector(0, 0, 7.5), App.Rotation())
sketch28.addGeometry(Part.Circle(Vector(-33.6, 74.2, 0), Vector(0, 0, 1), 1.9), False)
sketch28.addConstraint([
    Sketcher.Constraint("Diameter", 0, 3.850764),
    Sketcher.Constraint("DistanceX", 0, 3, -1, 1, 33.592516),
    Sketcher.Constraint("DistanceY", -1, 1, 0, 3, 74.152123),
])
pad17 = body2.newObject("PartDesign::Pad", "Pad016")
pad17.Profile = sketch28
pad17.Length = 1
body3 = doc.addObject("PartDesign::Body", "Body002")

# Sketch on XZ plane
sketch29 = body3.newObject("Sketcher::SketchObject", "Sketch028")
sketch29.AttachmentSupport = (doc.getObject("XZ_Plane002"), [""])
sketch29.MapMode = "FlatFace"
add_polygon(sketch29, [(-56, 34), (-60, 30), (-113, 83), (-109, 87)])  # lines 0-3
sketch29.addConstraint([
    Sketcher.Constraint("Perpendicular", 0, 1),
    Sketcher.Constraint("Perpendicular", 1, 2),
    Sketcher.Constraint("Perpendicular", 2, 3),
    Sketcher.Constraint("Angle", 0, Q("-135 deg")),
    Sketcher.Constraint("DistanceY", -1, 1, 0, 2, 30.112229),
    Sketcher.Constraint("DistanceY", -1, 1, 2, 2, 87.449372),
    Sketcher.Constraint("DistanceY", -1, 1, 3, 2, 34.076279),
    Sketcher.Constraint("DistanceX", 0, 2, -1, 1, 59.749344),
])
pad18 = body3.newObject("PartDesign::Pad", "Pad017")
pad18.Profile = sketch29
pad18.Length = 200
pad18.Reversed = True
body.AllowCompound = True
doc.recompute()

boolean = body.newObject("PartDesign::Boolean", "Boolean")
boolean.Type = "Fuse"
boolean.addObjects([body3])

# Sketch on XZ plane
sketch30 = body.newObject("Sketcher::SketchObject", "Sketch029")
sketch30.AttachmentSupport = (doc.getObject("XZ_Plane"), [""])
sketch30.MapMode = "FlatFace"
sketch30.AttachmentOffset = App.Placement(Vector(0, 0, -200), App.Rotation())
sketch30.addGeometry(Part.Circle(Vector(-56, 29, 0), Vector(0, 0, 1), 5), False)
sketch30.addConstraint([
    Sketcher.Constraint("Diameter", 0, 10.667689),
    Sketcher.Constraint("DistanceX", 0, 3, -1, 1, 56.348975),
    Sketcher.Constraint("DistanceY", -1, 1, 0, 3, 28.857914),
])
pad19 = body.newObject("PartDesign::Pad", "Pad018")
pad19.Profile = sketch30
pad19.Length = 200

# Sketch on XZ plane
sketch31 = body.newObject("Sketcher::SketchObject", "Sketch030")
sketch31.AttachmentSupport = (doc.getObject("XZ_Plane"), [""])
sketch31.MapMode = "FlatFace"
sketch31.AttachmentOffset = App.Placement(Vector(0, 0, -200), App.Rotation())
add_polygon(sketch31, [(-45.6, 33.1), (-51.2, 27.5), (-53, 27.5), (-53, 24.7), (-59.1, 19.6), (-126.8, 77.9), (-108.6, 96.1)])  # lines 0-6
sketch31.addConstraint([
    Sketcher.Constraint("Horizontal", 1),
    Sketcher.Constraint("Vertical", 2),
    Sketcher.Constraint("Parallel", 0, 5),
    Sketcher.Constraint("Perpendicular", 5, 6),
    Sketcher.Constraint("Angle", 0, Q("-135 deg")),
    Sketcher.Constraint("DistanceX", 1, 2, -1, 1, 53.0),
    Sketcher.Constraint("DistanceY", -1, 1, 0, 2, 27.5),
    Sketcher.Constraint("Distance", 3, 7.968969),
    Sketcher.Constraint("DistanceX", 1, 2, 1, 1, 1.809122),
    Sketcher.Constraint("DistanceY", 2, 2, 2, 1, 2.793503),
    Sketcher.Constraint("DistanceX", 4, 2, -1, 1, 126.793282),
    Sketcher.Constraint("DistanceY", -1, 1, 4, 2, 77.871959),
    Sketcher.Constraint("DistanceX", 6, 2, -1, 1, 45.622452),
    Sketcher.Constraint("Distance", 4, 89.325025),
])
pocket12 = body.newObject("PartDesign::Pocket", "Pocket011")
pocket12.Profile = sketch31
pocket12.Length = 207
pocket12.Reversed = True

doc.recompute()
